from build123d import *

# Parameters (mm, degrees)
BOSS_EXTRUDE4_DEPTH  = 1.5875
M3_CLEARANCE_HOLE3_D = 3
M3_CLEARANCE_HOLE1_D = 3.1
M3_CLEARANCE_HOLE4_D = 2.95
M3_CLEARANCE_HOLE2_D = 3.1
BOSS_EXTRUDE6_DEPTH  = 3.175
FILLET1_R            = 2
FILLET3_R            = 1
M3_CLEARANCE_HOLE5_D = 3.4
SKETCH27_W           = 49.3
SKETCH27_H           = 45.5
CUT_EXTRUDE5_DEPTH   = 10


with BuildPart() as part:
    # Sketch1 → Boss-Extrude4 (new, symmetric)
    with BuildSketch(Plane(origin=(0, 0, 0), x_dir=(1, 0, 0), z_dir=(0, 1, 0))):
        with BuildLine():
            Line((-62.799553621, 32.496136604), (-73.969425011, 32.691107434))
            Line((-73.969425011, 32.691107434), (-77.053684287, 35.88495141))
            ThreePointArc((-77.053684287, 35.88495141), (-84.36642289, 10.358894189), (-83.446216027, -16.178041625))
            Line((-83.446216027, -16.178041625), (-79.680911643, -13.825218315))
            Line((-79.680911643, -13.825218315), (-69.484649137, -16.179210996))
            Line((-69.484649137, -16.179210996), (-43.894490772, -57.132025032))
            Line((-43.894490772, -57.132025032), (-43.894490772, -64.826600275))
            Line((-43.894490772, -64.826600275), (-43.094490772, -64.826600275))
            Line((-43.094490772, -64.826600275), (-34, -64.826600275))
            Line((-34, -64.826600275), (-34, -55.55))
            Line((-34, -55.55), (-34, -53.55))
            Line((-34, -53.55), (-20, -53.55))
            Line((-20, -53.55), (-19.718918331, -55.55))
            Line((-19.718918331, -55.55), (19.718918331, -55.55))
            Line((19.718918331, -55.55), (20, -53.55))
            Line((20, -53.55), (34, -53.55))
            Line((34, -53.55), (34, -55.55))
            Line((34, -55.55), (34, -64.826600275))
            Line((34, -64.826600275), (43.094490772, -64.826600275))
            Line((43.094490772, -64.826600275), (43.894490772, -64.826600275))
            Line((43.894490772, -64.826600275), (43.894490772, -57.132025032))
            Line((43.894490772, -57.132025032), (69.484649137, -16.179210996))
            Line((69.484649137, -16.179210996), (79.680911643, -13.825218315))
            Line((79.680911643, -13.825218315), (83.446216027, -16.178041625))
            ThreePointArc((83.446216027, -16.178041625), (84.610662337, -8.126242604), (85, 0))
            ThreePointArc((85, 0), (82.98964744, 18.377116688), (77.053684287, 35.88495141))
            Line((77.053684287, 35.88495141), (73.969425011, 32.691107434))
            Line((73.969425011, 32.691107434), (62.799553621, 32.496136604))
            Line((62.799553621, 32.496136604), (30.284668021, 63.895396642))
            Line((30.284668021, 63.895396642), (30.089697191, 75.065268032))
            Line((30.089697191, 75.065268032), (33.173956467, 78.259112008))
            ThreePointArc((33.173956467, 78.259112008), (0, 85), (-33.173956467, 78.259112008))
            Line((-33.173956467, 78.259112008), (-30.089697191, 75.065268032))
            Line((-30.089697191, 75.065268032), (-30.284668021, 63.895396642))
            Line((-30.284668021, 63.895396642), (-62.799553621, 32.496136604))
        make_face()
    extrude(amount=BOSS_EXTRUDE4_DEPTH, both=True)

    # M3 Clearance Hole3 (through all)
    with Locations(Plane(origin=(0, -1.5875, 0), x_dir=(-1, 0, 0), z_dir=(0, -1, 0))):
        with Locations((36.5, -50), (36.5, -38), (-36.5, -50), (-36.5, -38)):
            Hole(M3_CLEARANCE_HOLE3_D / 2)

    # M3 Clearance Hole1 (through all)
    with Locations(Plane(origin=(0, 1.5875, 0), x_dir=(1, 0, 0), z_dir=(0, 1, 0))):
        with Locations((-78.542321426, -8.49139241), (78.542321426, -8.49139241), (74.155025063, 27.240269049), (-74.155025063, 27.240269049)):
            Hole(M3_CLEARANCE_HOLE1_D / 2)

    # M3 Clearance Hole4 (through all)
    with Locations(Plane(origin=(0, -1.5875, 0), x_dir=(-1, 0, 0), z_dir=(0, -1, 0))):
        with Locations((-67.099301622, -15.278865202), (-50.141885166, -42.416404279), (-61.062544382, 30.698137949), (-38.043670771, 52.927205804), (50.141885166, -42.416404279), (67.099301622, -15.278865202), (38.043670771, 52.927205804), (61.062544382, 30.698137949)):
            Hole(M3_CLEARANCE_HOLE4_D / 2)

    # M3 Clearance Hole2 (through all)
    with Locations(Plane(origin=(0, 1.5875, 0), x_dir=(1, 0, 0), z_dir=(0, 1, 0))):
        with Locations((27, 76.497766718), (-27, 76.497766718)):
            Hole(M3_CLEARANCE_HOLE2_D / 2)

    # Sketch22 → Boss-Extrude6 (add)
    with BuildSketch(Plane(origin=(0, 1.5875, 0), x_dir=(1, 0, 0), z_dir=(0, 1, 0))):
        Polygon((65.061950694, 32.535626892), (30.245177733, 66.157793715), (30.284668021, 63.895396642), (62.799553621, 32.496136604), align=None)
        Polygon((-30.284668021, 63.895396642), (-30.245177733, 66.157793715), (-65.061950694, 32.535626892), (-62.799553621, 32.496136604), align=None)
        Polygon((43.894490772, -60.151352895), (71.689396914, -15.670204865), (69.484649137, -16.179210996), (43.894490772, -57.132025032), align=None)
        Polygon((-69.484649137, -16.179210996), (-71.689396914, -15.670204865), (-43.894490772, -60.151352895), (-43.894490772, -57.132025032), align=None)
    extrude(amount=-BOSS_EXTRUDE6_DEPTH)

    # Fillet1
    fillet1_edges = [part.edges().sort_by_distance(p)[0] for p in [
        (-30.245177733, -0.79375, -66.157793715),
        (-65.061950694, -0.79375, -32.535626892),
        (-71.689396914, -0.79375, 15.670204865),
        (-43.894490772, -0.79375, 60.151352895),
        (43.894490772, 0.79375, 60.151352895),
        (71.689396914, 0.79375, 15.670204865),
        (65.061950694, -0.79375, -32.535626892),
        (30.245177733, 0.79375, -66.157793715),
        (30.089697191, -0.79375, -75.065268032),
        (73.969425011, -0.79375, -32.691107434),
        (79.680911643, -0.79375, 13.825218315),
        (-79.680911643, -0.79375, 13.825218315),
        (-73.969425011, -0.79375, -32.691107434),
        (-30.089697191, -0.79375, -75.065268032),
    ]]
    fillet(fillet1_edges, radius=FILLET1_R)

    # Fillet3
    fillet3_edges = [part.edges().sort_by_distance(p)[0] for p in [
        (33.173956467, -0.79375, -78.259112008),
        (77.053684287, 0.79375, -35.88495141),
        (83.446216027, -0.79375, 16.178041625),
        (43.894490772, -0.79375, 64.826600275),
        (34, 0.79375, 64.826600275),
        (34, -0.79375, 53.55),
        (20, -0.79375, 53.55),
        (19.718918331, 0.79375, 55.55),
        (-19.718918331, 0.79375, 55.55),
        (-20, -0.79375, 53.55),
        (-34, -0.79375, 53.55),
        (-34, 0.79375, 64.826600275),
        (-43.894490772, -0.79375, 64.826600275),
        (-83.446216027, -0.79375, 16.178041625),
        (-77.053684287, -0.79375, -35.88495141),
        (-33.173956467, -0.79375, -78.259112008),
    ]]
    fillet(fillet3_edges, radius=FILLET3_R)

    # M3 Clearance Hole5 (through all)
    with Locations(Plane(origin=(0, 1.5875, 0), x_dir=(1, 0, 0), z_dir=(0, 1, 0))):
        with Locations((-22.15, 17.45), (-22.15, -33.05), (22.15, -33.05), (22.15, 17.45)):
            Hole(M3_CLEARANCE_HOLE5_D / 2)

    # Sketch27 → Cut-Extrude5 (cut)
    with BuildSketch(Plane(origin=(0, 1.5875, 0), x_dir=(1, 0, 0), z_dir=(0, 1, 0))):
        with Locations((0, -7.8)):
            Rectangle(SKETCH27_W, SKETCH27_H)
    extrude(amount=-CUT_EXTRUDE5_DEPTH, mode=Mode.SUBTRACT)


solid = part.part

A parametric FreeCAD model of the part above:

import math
import FreeCAD as App
import Part
import Sketcher
from FreeCAD import Vector
Q = App.Units.Quantity


def edges_at(feature, points):
    """Names of the edges that pass closest to the given points."""
    edges = feature.Shape.Edges
    near = lambda p: min(range(len(edges)), key=lambda i: edges[i].distToShape(Part.Vertex(*p))[0])
    return sorted({f"Edge{near(p) + 1}" for p in points})

doc = App.newDocument("Part")
body = doc.addObject("PartDesign::Body", "Body")

# Sketch on XZ plane
sketch1 = doc.addObject("Sketcher::SketchObject", "Sketch")
body.addObject(sketch1)
sketch1.AttachmentSupport = (doc.XZ_Plane, [""])
sketch1.MapMode = "FlatFace"
sketch1.addGeometry([
    Part.LineSegment(Vector(-62.8, -32.5, 0), Vector(-74, -32.7, 0)),  # 0
    Part.LineSegment(Vector(-74, -32.7, 0), Vector(-77.1, -35.9, 0)),  # 1
    Part.ArcOfCircle(Part.Circle(Vector(0, 0, 0), Vector(0, 0, 1), 85), math.radians(169), math.radians(205)),  # 2
    Part.LineSegment(Vector(-83.4, 16.2, 0), Vector(-79.7, 13.8, 0)),  # 3
    Part.LineSegment(Vector(-79.7, 13.8, 0), Vector(-69.5, 16.2, 0)),  # 4
    Part.LineSegment(Vector(-69.5, 16.2, 0), Vector(-43.9, 57.1, 0)),  # 5
    Part.LineSegment(Vector(-43.9, 57.1, 0), Vector(-43.9, 64.8, 0)),  # 6
    Part.LineSegment(Vector(-43.9, 64.8, 0), Vector(-34, 64.8, 0)),  # 7
    Part.LineSegment(Vector(-34, 64.8, 0), Vector(-34, 53.5, 0)),  # 8
    Part.LineSegment(Vector(-34, 53.5, 0), Vector(-20, 53.5, 0)),  # 9
    Part.LineSegment(Vector(-20, 53.5, 0), Vector(-19.7, 55.5, 0)),  # 10
    Part.LineSegment(Vector(-19.7, 55.5, 0), Vector(19.7, 55.5, 0)),  # 11
    Part.LineSegment(Vector(19.7, 55.5, 0), Vector(20, 53.5, 0)),  # 12
    Part.LineSegment(Vector(20, 53.5, 0), Vector(34, 53.5, 0)),  # 13
    Part.LineSegment(Vector(34, 53.5, 0), Vector(34, 64.8, 0)),  # 14
    Part.LineSegment(Vector(34, 64.8, 0), Vector(43.9, 64.8, 0)),  # 15
    Part.LineSegment(Vector(43.9, 64.8, 0), Vector(43.9, 57.1, 0)),  # 16
    Part.LineSegment(Vector(43.9, 57.1, 0), Vector(69.5, 16.2, 0)),  # 17
    Part.LineSegment(Vector(69.5, 16.2, 0), Vector(79.7, 13.8, 0)),  # 18
    Part.LineSegment(Vector(79.7, 13.8, 0), Vector(83.4, 16.2, 0)),  # 19
    Part.ArcOfCircle(Part.Circle(Vector(0, 0, 0), Vector(0, 0, 1), 85), math.radians(0), math.radians(10.97)),  # 20
    Part.ArcOfCircle(Part.Circle(Vector(0, 0, 0), Vector(0, 0, 1), 85), math.radians(-25), math.radians(0)),  # 21
    Part.LineSegment(Vector(77.1, -35.9, 0), Vector(74, -32.7, 0)),  # 22
    Part.LineSegment(Vector(74, -32.7, 0), Vector(62.8, -32.5, 0)),  # 23
    Part.LineSegment(Vector(62.8, -32.5, 0), Vector(30.3, -63.9, 0)),  # 24
    Part.LineSegment(Vector(30.3, -63.9, 0), Vector(30.1, -75.1, 0)),  # 25
    Part.LineSegment(Vector(30.1, -75.1, 0), Vector(33.2, -78.3, 0)),  # 26
    Part.ArcOfCircle(Part.Circle(Vector(0, 0, 0), Vector(0, 0, 1), 85), math.radians(-113), math.radians(-67)),  # 27
    Part.LineSegment(Vector(-33.2, -78.3, 0), Vector(-30.1, -75.1, 0)),  # 28
    Part.LineSegment(Vector(-30.1, -75.1, 0), Vector(-30.3, -63.9, 0)),  # 29
    Part.LineSegment(Vector(-30.3, -63.9, 0), Vector(-62.8, -32.5, 0)),  # 30
], False)
sketch1.addConstraint([
    Sketcher.Constraint("Coincident", 0, 2, 1, 1),
    Sketcher.Constraint("Coincident", 1, 2, 2, 2),
    Sketcher.Constraint("Coincident", 2, 1, 3, 1),
    Sketcher.Constraint("Coincident", 3, 2, 4, 1),
    Sketcher.Constraint("Coincident", 4, 2, 5, 1),
    Sketcher.Constraint("Coincident", 5, 2, 6, 1),
    Sketcher.Constraint("Coincident", 6, 2, 7, 1),
    Sketcher.Constraint("Coincident", 7, 2, 8, 1),
    Sketcher.Constraint("Coincident", 8, 2, 9, 1),
    Sketcher.Constraint("Coincident", 9, 2, 10, 1),
    Sketcher.Constraint("Coincident", 10, 2, 11, 1),
    Sketcher.Constraint("Coincident", 11, 2, 12, 1),
    Sketcher.Constraint("Coincident", 12, 2, 13, 1),
    Sketcher.Constraint("Coincident", 13, 2, 14, 1),
    Sketcher.Constraint("Coincident", 14, 2, 15, 1),
    Sketcher.Constraint("Coincident", 15, 2, 16, 1),
    Sketcher.Constraint("Coincident", 16, 2, 17, 1),
    Sketcher.Constraint("Coincident", 17, 2, 18, 1),
    Sketcher.Constraint("Coincident", 18, 2, 19, 1),
    Sketcher.Constraint("Coincident", 19, 2, 20, 2),
    Sketcher.Constraint("Tangent", 20, 1, 21, 2),
    Sketcher.Constraint("Coincident", 21, 1, 22, 1),
    Sketcher.Constraint("Coincident", 22, 2, 23, 1),
    Sketcher.Constraint("Coincident", 23, 2, 24, 1),
    Sketcher.Constraint("Coincident", 24, 2, 25, 1),
    Sketcher.Constraint("Coincident", 25, 2, 26, 1),
    Sketcher.Constraint("Coincident", 26, 2, 27, 2),
    Sketcher.Constraint("Coincident", 27, 1, 28, 1),
    Sketcher.Constraint("Coincident", 28, 2, 29, 1),
    Sketcher.Constraint("Coincident", 29, 2, 30, 1),
    Sketcher.Constraint("Coincident", 30, 2, 0, 1),
    Sketcher.Constraint("Vertical", 6),
    Sketcher.Constraint("Horizontal", 7),
    Sketcher.Constraint("Vertical", 8),
    Sketcher.Constraint("Horizontal", 9),
    Sketcher.Constraint("Horizontal", 11),
    Sketcher.Constraint("Horizontal", 13),
    Sketcher.Constraint("Vertical", 14),
    Sketcher.Constraint("Horizontal", 15),
    Sketcher.Constraint("Vertical", 16),
    Sketcher.Constraint("Coincident", 2, 3, -1, 1),
    Sketcher.Constraint("Coincident", 20, 3, -1, 1),
    Sketcher.Constraint("Coincident", 27, 3, -1, 1),
    Sketcher.Constraint("Equal", 2, 20),
    Sketcher.Constraint("Equal", 20, 21),
    Sketcher.Constraint("Equal", 21, 27),
    Sketcher.Constraint("Symmetric", 9, 2, 12, 2, -2),
    Sketcher.Constraint("Symmetric", 7, 2, 14, 2, -2),
    Sketcher.Constraint("Symmetric", 5, 2, 16, 2, -2),
    Sketcher.Constraint("Symmetric", 4, 2, 17, 2, -2),
    Sketcher.Constraint("Symmetric", 3, 2, 18, 2, -2),
    Sketcher.Constraint("Symmetric", 0, 2, 22, 2, -2),
    Sketcher.Constraint("Symmetric", 25, 2, 28, 2, -2),
    Sketcher.Constraint("Symmetric", 24, 2, 29, 2, -2),
    Sketcher.Constraint("Symmetric", 23, 2, 30, 2, -2),
    Sketcher.Constraint("PointOnObject", 20, 1, -1),
    Sketcher.Constraint("Perpendicular", 3, 5),
    Sketcher.Constraint("Perpendicular", 17, 19),
    Sketcher.Constraint("Perpendicular", 22, 24),
    Sketcher.Constraint("Perpendicular", 23, 25),
    Sketcher.Constraint("Perpendicular", 24, 26),
    Sketcher.Constraint("Parallel", 1, 28),
    Sketcher.Constraint("Perpendicular", 28, 30),
    Sketcher.Constraint("Equal", 1, 3),
    Sketcher.Constraint("Equal", 10, 12),
    Sketcher.Constraint("Equal", 23, 25),
    Sketcher.Constraint("Equal", 22, 26),
    Sketcher.Constraint("Radius", 2, 85.0),
    Sketcher.Constraint("DistanceX", 9, 1, 9, 2, 14.0),
    Sketcher.Constraint("Angle", 0, Q("-179 deg")),
    Sketcher.Constraint("Angle", 1, Q("-134 deg")),
    Sketcher.Constraint("Angle", 3, Q("-32 deg")),
    Sketcher.Constraint("Angle", 4, Q("13 deg")),
    Sketcher.Constraint("Angle", 10, Q("82 deg")),
    Sketcher.Constraint("DistanceX", 7, 2, -1, 1, 34.0),
    Sketcher.Constraint("DistanceY", 9, 2, 10, 2, 2.0),
    Sketcher.Constraint("DistanceY", -1, 1, 8, 2, 53.55),
    Sketcher.Constraint("DistanceY", 8, 2, 8, 1, 11.2766),
    Sketcher.Constraint("DistanceX", 7, 1, 7, 2, 9.894491),
    Sketcher.Constraint("Distance", 24, 45.20101),
    Sketcher.Constraint("DistanceY", 6, 1, 6, 2, 7.694575),
    Sketcher.Constraint("DistanceY", 1, 2, -1, 1, 35.884951),
    Sketcher.Constraint("DistanceY", -1, 1, 2, 1, 16.178042),
    Sketcher.Constraint("DistanceX", 3, 2, -1, 1, 79.680912),
])
pad1 = doc.addObject("PartDesign::Pad", "Pad")
body.addObject(pad1)
pad1.Profile = sketch1
pad1.Length = 3.175
pad1.Midplane = True

# Sketch on XZ plane
sketch2 = doc.addObject("Sketcher::SketchObject", "Sketch001")
body.addObject(sketch2)
sketch2.AttachmentSupport = (doc.XZ_Plane, [""])
sketch2.MapMode = "FlatFace"
sketch2.AttachmentOffset = App.Placement(Vector(0, 0, 1.5875), App.Rotation())
sketch2.addGeometry([
    Part.Circle(Vector(-36.5, 50, 0), Vector(0, 0, 1), 1.5),
    Part.Circle(Vector(-36.5, 38, 0), Vector(0, 0, 1), 1.5),
    Part.Circle(Vector(36.5, 50, 0), Vector(0, 0, 1), 1.5),
    Part.Circle(Vector(36.5, 38, 0), Vector(0, 0, 1), 1.5),
], False)
sketch2.addConstraint([
    Sketcher.Constraint("Equal", 0, 1),
    Sketcher.Constraint("Equal", 1, 2),
    Sketcher.Constraint("Equal", 2, 3),
    Sketcher.Constraint("Symmetric", 0, 3, 2, 3, -2),
    Sketcher.Constraint("Symmetric", 1, 3, 3, 3, -2),
    Sketcher.Constraint("Vertical", 0, 3, 1, 3),
    Sketcher.Constraint("Diameter", 0, 3.0),
    Sketcher.Constraint("DistanceY", -1, 1, 0, 3, 50.0),
    Sketcher.Constraint("DistanceY", -1, 1, 1, 3, 38.0),
    Sketcher.Constraint("DistanceX", 0, 3, 2, 3, 73.0),
])
doc.recompute()
hole = doc.addObject("PartDesign::Hole", "Hole")
body.addObject(hole)
hole.Profile = sketch2
hole.ThreadType = "None"
hole.Diameter = 3
hole.DepthType = "ThroughAll"

# Sketch on XZ plane
sketch3 = doc.addObject("Sketcher::SketchObject", "Sketch002")
body.addObject(sketch3)
sketch3.AttachmentSupport = (doc.XZ_Plane, [""])
sketch3.MapMode = "FlatFace"
sketch3.AttachmentOffset = App.Placement(Vector(0, 0, -1.5875), App.Rotation())
sketch3.addGeometry([
    Part.Circle(Vector(-78.5, 8.5, 0), Vector(0, 0, 1), 1.6),
    Part.Circle(Vector(78.5, 8.5, 0), Vector(0, 0, 1), 1.6),
    Part.Circle(Vector(74.2, -27.2, 0), Vector(0, 0, 1), 1.6),
    Part.Circle(Vector(-74.2, -27.2, 0), Vector(0, 0, 1), 1.6),
], False)
sketch3.addConstraint([
    Sketcher.Constraint("Equal", 0, 1),
    Sketcher.Constraint("Equal", 1, 2),
    Sketcher.Constraint("Equal", 2, 3),
    Sketcher.Constraint("Symmetric", 0, 3, 1, 3, -2),
    Sketcher.Constraint("Symmetric", 2, 3, 3, 3, -2),
    Sketcher.Constraint("Diameter", 0, 3.1),
    Sketcher.Constraint("DistanceX", 0, 3, -1, 1, 78.542321),
    Sketcher.Constraint("DistanceY", 2, 3, -1, 1, 27.240269),
    Sketcher.Constraint("DistanceY", 2, 3, 1, 3, 35.731661),
    Sketcher.Constraint("DistanceX", 3, 3, 2, 3, 148.31005),
])
doc.recompute()
hole2 = doc.addObject("PartDesign::Hole", "Hole001")
body.addObject(hole2)
hole2.Profile = sketch3
hole2.ThreadType = "None"
hole2.Diameter = 3.1
hole2.DepthType = "ThroughAll"
hole2.Reversed = True

# Sketch on XZ plane
sketch4 = doc.addObject("Sketcher::SketchObject", "Sketch003")
body.addObject(sketch4)
sketch4.AttachmentSupport = (doc.XZ_Plane, [""])
sketch4.MapMode = "FlatFace"
sketch4.AttachmentOffset = App.Placement(Vector(0, 0, 1.5875), App.Rotation())
sketch4.addGeometry([
    Part.Circle(Vector(67.1, 15.3, 0), Vector(0, 0, 1), 1.5),  # 0
    Part.Circle(Vector(50.1, 42.4, 0), Vector(0, 0, 1), 1.5),  # 1
    Part.Circle(Vector(61.1, -30.7, 0), Vector(0, 0, 1), 1.5),  # 2
    Part.Circle(Vector(38, -52.9, 0), Vector(0, 0, 1), 1.5),  # 3
    Part.Circle(Vector(-50.1, 42.4, 0), Vector(0, 0, 1), 1.5),  # 4
    Part.Circle(Vector(-67.1, 15.3, 0), Vector(0, 0, 1), 1.5),  # 5
    Part.Circle(Vector(-38, -52.9, 0), Vector(0, 0, 1), 1.5),  # 6
    Part.Circle(Vector(-61.1, -30.7, 0), Vector(0, 0, 1), 1.5),  # 7
], False)
sketch4.addConstraint([
    Sketcher.Constraint("Equal", 0, 1),
    Sketcher.Constraint("Equal", 1, 2),
    Sketcher.Constraint("Equal", 2, 3),
    Sketcher.Constraint("Equal", 3, 4),
    Sketcher.Constraint("Equal", 4, 5),
    Sketcher.Constraint("Equal", 5, 6),
    Sketcher.Constraint("Equal", 6, 7),
    Sketcher.Constraint("Symmetric", 1, 3, 4, 3, -2),
    Sketcher.Constraint("Symmetric", 0, 3, 5, 3, -2),
    Sketcher.Constraint("Symmetric", 3, 3, 6, 3, -2),
    Sketcher.Constraint("Symmetric", 2, 3, 7, 3, -2),
    Sketcher.Constraint("Diameter", 0, 2.95),
    Sketcher.Constraint("DistanceX", -1, 1, 0, 3, 67.099302),
    Sketcher.Constraint("DistanceX", -1, 1, 3, 3, 38.043671),
    Sketcher.Constraint("DistanceY", 0, 3, 1, 3, 27.137539),
    Sketcher.Constraint("DistanceX", 1, 3, 2, 3, 10.920659),
    Sketcher.Constraint("DistanceY", 3, 3, 0, 3, 68.206071),
    Sketcher.Constraint("DistanceX", 4, 3, 1, 3, 100.28377),
    Sketcher.Constraint("DistanceY", -1, 1, 0, 3, 15.278865),
    Sketcher.Constraint("DistanceY", 2, 3, -1, 1, 30.698138),
])
doc.recompute()
hole3 = doc.addObject("PartDesign::Hole", "Hole002")
body.addObject(hole3)
hole3.Profile = sketch4
hole3.ThreadType = "None"
hole3.Diameter = 2.95
hole3.DepthType = "ThroughAll"

# Sketch on XZ plane
sketch5 = doc.addObject("Sketcher::SketchObject", "Sketch004")
body.addObject(sketch5)
sketch5.AttachmentSupport = (doc.XZ_Plane, [""])
sketch5.MapMode = "FlatFace"
sketch5.AttachmentOffset = App.Placement(Vector(0, 0, -1.5875), App.Rotation())
sketch5.addGeometry([
    Part.Circle(Vector(27, -76.5, 0), Vector(0, 0, 1), 1.6),
    Part.Circle(Vector(-27, -76.5, 0), Vector(0, 0, 1), 1.6),
], False)
sketch5.addConstraint([
    Sketcher.Constraint("Equal", 0, 1),
    Sketcher.Constraint("Symmetric", 0, 3, 1, 3, -2),
    Sketcher.Constraint("Diameter", 0, 3.1),
    Sketcher.Constraint("DistanceX", -1, 1, 0, 3, 27.0),
    Sketcher.Constraint("DistanceY", 0, 3, -1, 1, 76.497767),
])
doc.recompute()
hole4 = doc.addObject("PartDesign::Hole", "Hole003")
body.addObject(hole4)
hole4.Profile = sketch5
hole4.ThreadType = "None"
hole4.Diameter = 3.1
hole4.DepthType = "ThroughAll"
hole4.Reversed = True

# Sketch on XZ plane
sketch6 = doc.addObject("Sketcher::SketchObject", "Sketch005")
body.addObject(sketch6)
sketch6.AttachmentSupport = (doc.XZ_Plane, [""])
sketch6.MapMode = "FlatFace"
sketch6.AttachmentOffset = App.Placement(Vector(0, 0, -1.5875), App.Rotation())
sketch6.addGeometry([
    Part.LineSegment(Vector(65.1, -32.5, 0), Vector(30.2, -66.2, 0)),  # 0
    Part.LineSegment(Vector(30.2, -66.2, 0), Vector(30.3, -63.9, 0)),  # 1
    Part.LineSegment(Vector(30.3, -63.9, 0), Vector(62.8, -32.5, 0)),  # 2
    Part.LineSegment(Vector(62.8, -32.5, 0), Vector(65.1, -32.5, 0)),  # 3
    Part.LineSegment(Vector(-30.3, -63.9, 0), Vector(-30.2, -66.2, 0)),  # 4
    Part.LineSegment(Vector(-30.2, -66.2, 0), Vector(-65.1, -32.5, 0)),  # 5
    Part.LineSegment(Vector(-65.1, -32.5, 0), Vector(-62.8, -32.5, 0)),  # 6
    Part.LineSegment(Vector(-62.8, -32.5, 0), Vector(-30.3, -63.9, 0)),  # 7
    Part.LineSegment(Vector(43.9, 60.2, 0), Vector(71.7, 15.7, 0)),  # 8
    Part.LineSegment(Vector(71.7, 15.7, 0), Vector(69.5, 16.2, 0)),  # 9
    Part.LineSegment(Vector(69.5, 16.2, 0), Vector(43.9, 57.1, 0)),  # 10
    Part.LineSegment(Vector(43.9, 57.1, 0), Vector(43.9, 60.2, 0)),  # 11
    Part.LineSegment(Vector(-69.5, 16.2, 0), Vector(-71.7, 15.7, 0)),  # 12
    Part.LineSegment(Vector(-71.7, 15.7, 0), Vector(-43.9, 60.2, 0)),  # 13
    Part.LineSegment(Vector(-43.9, 60.2, 0), Vector(-43.9, 57.1, 0)),  # 14
    Part.LineSegment(Vector(-43.9, 57.1, 0), Vector(-69.5, 16.2, 0)),  # 15
], False)
sketch6.addConstraint([
    Sketcher.Constraint("Coincident", 0, 2, 1, 1),
    Sketcher.Constraint("Coincident", 1, 2, 2, 1),
    Sketcher.Constraint("Coincident", 2, 2, 3, 1),
    Sketcher.Constraint("Coincident", 3, 2, 0, 1),
    Sketcher.Constraint("Coincident", 4, 2, 5, 1),
    Sketcher.Constraint("Coincident", 5, 2, 6, 1),
    Sketcher.Constraint("Coincident", 6, 2, 7, 1),
    Sketcher.Constraint("Coincident", 7, 2, 4, 1),
    Sketcher.Constraint("Coincident", 8, 2, 9, 1),
    Sketcher.Constraint("Coincident", 9, 2, 10, 1),
    Sketcher.Constraint("Coincident", 10, 2, 11, 1),
    Sketcher.Constraint("Coincident", 11, 2, 8, 1),
    Sketcher.Constraint("Coincident", 12, 2, 13, 1),
    Sketcher.Constraint("Coincident", 13, 2, 14, 1),
    Sketcher.Constraint("Coincident", 14, 2, 15, 1),
    Sketcher.Constraint("Coincident", 15, 2, 12, 1),
    Sketcher.Constraint("Vertical", 11),
    Sketcher.Constraint("Vertical", 14),
    Sketcher.Constraint("Symmetric", 0, 2, 4, 2, -2),
    Sketcher.Constraint("Symmetric", 3, 2, 5, 2, -2),
    Sketcher.Constraint("Symmetric", 2, 2, 6, 2, -2),
    Sketcher.Constraint("Symmetric", 1, 2, 7, 2, -2),
    Sketcher.Constraint("Symmetric", 8, 2, 12, 2, -2),
    Sketcher.Constraint("Symmetric", 11, 2, 13, 2, -2),
    Sketcher.Constraint("Symmetric", 9, 2, 15, 2, -2),
    Sketcher.Constraint("Parallel", 0, 2),
    Sketcher.Constraint("Perpendicular", 1, 3),
    Sketcher.Constraint("Parallel", 8, 10),
    Sketcher.Constraint("Parallel", 13, 15),
    Sketcher.Constraint("Equal", 1, 3),
    Sketcher.Constraint("Equal", 6, 9),
    Sketcher.Constraint("Angle", 0, Q("-136 deg")),
    Sketcher.Constraint("Angle", 8, Q("-58 deg")),
    Sketcher.Constraint("Angle", 9, Q("167 deg")),
    Sketcher.Constraint("DistanceY", 0, 2, 8, 2, 81.827999),
    Sketcher.Constraint("DistanceX", 5, 2, 3, 2, 130.123901),
    Sketcher.Constraint("DistanceY", 1, 2, 8, 2, 79.565602),
    Sketcher.Constraint("DistanceX", 3, 2, 9, 2, 4.422698),
    Sketcher.Constraint("Distance", 0, 48.40101),
    Sketcher.Constraint("Distance", 8, 52.451209),
    Sketcher.Constraint("DistanceY", -1, 1, 9, 2, 16.179211),
])
pad2 = doc.addObject("PartDesign::Pad", "Pad001")
body.addObject(pad2)
pad2.Profile = sketch6
pad2.Length = 3.175
doc.recompute()

fillet = doc.addObject("PartDesign::Fillet", "Fillet")
body.addObject(fillet)
fillet.Base = (pad2, edges_at(pad2, [
    (-30.245, 0, -66.158),
    (-65.062, 0, -32.536),
    (-71.689, 0, 15.67),
    (-43.894, 0, 60.151),
    (43.894, 0, 60.151),
    (71.689, 0, 15.67),
    (65.062, 0, -32.536),
    (30.245, 0, -66.158),
    (30.09, 0, -75.065),
    (73.969, 0, -32.691),
    (79.681, 0, 13.825),
    (-79.681, 0, 13.825),
    (-73.969, 0, -32.691),
    (-30.09, 0, -75.065),
]))
fillet.Radius = 2
doc.recompute()

fillet2 = doc.addObject("PartDesign::Fillet", "Fillet001")
body.addObject(fillet2)
fillet2.Base = (fillet, edges_at(fillet, [
    (33.174, 0, -78.259),
    (77.054, 0, -35.885),
    (83.446, 0, 16.178),
    (43.894, 0, 64.827),
    (34, 0, 64.827),
    (34, 0, 53.55),
    (20, 0, 53.55),
    (19.719, 0, 55.55),
    (-19.719, 0, 55.55),
    (-20, 0, 53.55),
    (-34, 0, 53.55),
    (-34, 0, 64.827),
    (-43.894, 0, 64.827),
    (-83.446, 0, 16.178),
    (-77.054, 0, -35.885),
    (-33.174, 0, -78.259),
]))
fillet2.Radius = 1

# Sketch on XZ plane
sketch7 = doc.addObject("Sketcher::SketchObject", "Sketch006")
body.addObject(sketch7)
sketch7.AttachmentSupport = (doc.XZ_Plane, [""])
sketch7.MapMode = "FlatFace"
sketch7.AttachmentOffset = App.Placement(Vector(0, 0, -1.5875), App.Rotation())
sketch7.addGeometry([
    Part.Circle(Vector(-22.1, -17.4, 0), Vector(0, 0, 1), 1.7),
    Part.Circle(Vector(-22.1, 33, 0), Vector(0, 0, 1), 1.7),
    Part.Circle(Vector(22.1, 33, 0), Vector(0, 0, 1), 1.7),
    Part.Circle(Vector(22.1, -17.4, 0), Vector(0, 0, 1), 1.7),
], False)
sketch7.addConstraint([
    Sketcher.Constraint("Equal", 0, 1),
    Sketcher.Constraint("Equal", 1, 2),
    Sketcher.Constraint("Equal", 2, 3),
    Sketcher.Constraint("Symmetric", 1, 3, 2, 3, -2),
    Sketcher.Constraint("Symmetric", 0, 3, 3, 3, -2),
    Sketcher.Constraint("Vertical", 0, 3, 1, 3),
    Sketcher.Constraint("Diameter", 0, 3.4),
    Sketcher.Constraint("DistanceY", 0, 3, 1, 3, 50.5),
    Sketcher.Constraint("DistanceX", 1, 3, 2, 3, 44.3),
    Sketcher.Constraint("DistanceY", 0, 3, -1, 1, 17.45),
])
doc.recompute()
hole5 = doc.addObject("PartDesign::Hole", "Hole004")
body.addObject(hole5)
hole5.Profile = sketch7
hole5.ThreadType = "None"
hole5.Diameter = 3.4
hole5.DepthType = "ThroughAll"
hole5.Reversed = True

# Sketch on XZ plane
sketch8 = doc.addObject("Sketcher::SketchObject", "Sketch007")
body.addObject(sketch8)
sketch8.AttachmentSupport = (doc.XZ_Plane, [""])
sketch8.MapMode = "FlatFace"
sketch8.AttachmentOffset = App.Placement(Vector(0, 0, -1.5875), App.Rotation())
sketch8.addGeometry([
    Part.LineSegment(Vector(-25, -15, 0), Vector(-25, 31, 0)),
    Part.LineSegment(Vector(-25, 31, 0), Vector(25, 31, 0)),
    Part.LineSegment(Vector(25, 31, 0), Vector(25, -15, 0)),
    Part.LineSegment(Vector(25, -15, 0), Vector(-25, -15, 0)),
], False)
sketch8.addConstraint([
    Sketcher.Constraint("Coincident", 0, 2, 1, 1),
    Sketcher.Constraint("Coincident", 1, 2, 2, 1),
    Sketcher.Constraint("Coincident", 2, 2, 3, 1),
    Sketcher.Constraint("Coincident", 3, 2, 0, 1),
    Sketcher.Constraint("Vertical", 0),
    Sketcher.Constraint("Horizontal", 1),
    Sketcher.Constraint("Vertical", 2),
    Sketcher.Constraint("Horizontal", 3),
    Sketcher.Constraint("DistanceX", 1, 1, 1, 2, 49.3),
    Sketcher.Constraint("DistanceY", 0, 1, 0, 2, 45.5),
    Sketcher.Constraint("DistanceX", 0, 2, -1, 1, 24.65),
    Sketcher.Constraint("DistanceY", -1, 1, 0, 2, 30.55),
])
pocket1 = doc.addObject("PartDesign::Pocket", "Pocket")
body.addObject(pocket1)
pocket1.Profile = sketch8
pocket1.Length = 10
pocket1.Reversed = True

doc.recompute()
